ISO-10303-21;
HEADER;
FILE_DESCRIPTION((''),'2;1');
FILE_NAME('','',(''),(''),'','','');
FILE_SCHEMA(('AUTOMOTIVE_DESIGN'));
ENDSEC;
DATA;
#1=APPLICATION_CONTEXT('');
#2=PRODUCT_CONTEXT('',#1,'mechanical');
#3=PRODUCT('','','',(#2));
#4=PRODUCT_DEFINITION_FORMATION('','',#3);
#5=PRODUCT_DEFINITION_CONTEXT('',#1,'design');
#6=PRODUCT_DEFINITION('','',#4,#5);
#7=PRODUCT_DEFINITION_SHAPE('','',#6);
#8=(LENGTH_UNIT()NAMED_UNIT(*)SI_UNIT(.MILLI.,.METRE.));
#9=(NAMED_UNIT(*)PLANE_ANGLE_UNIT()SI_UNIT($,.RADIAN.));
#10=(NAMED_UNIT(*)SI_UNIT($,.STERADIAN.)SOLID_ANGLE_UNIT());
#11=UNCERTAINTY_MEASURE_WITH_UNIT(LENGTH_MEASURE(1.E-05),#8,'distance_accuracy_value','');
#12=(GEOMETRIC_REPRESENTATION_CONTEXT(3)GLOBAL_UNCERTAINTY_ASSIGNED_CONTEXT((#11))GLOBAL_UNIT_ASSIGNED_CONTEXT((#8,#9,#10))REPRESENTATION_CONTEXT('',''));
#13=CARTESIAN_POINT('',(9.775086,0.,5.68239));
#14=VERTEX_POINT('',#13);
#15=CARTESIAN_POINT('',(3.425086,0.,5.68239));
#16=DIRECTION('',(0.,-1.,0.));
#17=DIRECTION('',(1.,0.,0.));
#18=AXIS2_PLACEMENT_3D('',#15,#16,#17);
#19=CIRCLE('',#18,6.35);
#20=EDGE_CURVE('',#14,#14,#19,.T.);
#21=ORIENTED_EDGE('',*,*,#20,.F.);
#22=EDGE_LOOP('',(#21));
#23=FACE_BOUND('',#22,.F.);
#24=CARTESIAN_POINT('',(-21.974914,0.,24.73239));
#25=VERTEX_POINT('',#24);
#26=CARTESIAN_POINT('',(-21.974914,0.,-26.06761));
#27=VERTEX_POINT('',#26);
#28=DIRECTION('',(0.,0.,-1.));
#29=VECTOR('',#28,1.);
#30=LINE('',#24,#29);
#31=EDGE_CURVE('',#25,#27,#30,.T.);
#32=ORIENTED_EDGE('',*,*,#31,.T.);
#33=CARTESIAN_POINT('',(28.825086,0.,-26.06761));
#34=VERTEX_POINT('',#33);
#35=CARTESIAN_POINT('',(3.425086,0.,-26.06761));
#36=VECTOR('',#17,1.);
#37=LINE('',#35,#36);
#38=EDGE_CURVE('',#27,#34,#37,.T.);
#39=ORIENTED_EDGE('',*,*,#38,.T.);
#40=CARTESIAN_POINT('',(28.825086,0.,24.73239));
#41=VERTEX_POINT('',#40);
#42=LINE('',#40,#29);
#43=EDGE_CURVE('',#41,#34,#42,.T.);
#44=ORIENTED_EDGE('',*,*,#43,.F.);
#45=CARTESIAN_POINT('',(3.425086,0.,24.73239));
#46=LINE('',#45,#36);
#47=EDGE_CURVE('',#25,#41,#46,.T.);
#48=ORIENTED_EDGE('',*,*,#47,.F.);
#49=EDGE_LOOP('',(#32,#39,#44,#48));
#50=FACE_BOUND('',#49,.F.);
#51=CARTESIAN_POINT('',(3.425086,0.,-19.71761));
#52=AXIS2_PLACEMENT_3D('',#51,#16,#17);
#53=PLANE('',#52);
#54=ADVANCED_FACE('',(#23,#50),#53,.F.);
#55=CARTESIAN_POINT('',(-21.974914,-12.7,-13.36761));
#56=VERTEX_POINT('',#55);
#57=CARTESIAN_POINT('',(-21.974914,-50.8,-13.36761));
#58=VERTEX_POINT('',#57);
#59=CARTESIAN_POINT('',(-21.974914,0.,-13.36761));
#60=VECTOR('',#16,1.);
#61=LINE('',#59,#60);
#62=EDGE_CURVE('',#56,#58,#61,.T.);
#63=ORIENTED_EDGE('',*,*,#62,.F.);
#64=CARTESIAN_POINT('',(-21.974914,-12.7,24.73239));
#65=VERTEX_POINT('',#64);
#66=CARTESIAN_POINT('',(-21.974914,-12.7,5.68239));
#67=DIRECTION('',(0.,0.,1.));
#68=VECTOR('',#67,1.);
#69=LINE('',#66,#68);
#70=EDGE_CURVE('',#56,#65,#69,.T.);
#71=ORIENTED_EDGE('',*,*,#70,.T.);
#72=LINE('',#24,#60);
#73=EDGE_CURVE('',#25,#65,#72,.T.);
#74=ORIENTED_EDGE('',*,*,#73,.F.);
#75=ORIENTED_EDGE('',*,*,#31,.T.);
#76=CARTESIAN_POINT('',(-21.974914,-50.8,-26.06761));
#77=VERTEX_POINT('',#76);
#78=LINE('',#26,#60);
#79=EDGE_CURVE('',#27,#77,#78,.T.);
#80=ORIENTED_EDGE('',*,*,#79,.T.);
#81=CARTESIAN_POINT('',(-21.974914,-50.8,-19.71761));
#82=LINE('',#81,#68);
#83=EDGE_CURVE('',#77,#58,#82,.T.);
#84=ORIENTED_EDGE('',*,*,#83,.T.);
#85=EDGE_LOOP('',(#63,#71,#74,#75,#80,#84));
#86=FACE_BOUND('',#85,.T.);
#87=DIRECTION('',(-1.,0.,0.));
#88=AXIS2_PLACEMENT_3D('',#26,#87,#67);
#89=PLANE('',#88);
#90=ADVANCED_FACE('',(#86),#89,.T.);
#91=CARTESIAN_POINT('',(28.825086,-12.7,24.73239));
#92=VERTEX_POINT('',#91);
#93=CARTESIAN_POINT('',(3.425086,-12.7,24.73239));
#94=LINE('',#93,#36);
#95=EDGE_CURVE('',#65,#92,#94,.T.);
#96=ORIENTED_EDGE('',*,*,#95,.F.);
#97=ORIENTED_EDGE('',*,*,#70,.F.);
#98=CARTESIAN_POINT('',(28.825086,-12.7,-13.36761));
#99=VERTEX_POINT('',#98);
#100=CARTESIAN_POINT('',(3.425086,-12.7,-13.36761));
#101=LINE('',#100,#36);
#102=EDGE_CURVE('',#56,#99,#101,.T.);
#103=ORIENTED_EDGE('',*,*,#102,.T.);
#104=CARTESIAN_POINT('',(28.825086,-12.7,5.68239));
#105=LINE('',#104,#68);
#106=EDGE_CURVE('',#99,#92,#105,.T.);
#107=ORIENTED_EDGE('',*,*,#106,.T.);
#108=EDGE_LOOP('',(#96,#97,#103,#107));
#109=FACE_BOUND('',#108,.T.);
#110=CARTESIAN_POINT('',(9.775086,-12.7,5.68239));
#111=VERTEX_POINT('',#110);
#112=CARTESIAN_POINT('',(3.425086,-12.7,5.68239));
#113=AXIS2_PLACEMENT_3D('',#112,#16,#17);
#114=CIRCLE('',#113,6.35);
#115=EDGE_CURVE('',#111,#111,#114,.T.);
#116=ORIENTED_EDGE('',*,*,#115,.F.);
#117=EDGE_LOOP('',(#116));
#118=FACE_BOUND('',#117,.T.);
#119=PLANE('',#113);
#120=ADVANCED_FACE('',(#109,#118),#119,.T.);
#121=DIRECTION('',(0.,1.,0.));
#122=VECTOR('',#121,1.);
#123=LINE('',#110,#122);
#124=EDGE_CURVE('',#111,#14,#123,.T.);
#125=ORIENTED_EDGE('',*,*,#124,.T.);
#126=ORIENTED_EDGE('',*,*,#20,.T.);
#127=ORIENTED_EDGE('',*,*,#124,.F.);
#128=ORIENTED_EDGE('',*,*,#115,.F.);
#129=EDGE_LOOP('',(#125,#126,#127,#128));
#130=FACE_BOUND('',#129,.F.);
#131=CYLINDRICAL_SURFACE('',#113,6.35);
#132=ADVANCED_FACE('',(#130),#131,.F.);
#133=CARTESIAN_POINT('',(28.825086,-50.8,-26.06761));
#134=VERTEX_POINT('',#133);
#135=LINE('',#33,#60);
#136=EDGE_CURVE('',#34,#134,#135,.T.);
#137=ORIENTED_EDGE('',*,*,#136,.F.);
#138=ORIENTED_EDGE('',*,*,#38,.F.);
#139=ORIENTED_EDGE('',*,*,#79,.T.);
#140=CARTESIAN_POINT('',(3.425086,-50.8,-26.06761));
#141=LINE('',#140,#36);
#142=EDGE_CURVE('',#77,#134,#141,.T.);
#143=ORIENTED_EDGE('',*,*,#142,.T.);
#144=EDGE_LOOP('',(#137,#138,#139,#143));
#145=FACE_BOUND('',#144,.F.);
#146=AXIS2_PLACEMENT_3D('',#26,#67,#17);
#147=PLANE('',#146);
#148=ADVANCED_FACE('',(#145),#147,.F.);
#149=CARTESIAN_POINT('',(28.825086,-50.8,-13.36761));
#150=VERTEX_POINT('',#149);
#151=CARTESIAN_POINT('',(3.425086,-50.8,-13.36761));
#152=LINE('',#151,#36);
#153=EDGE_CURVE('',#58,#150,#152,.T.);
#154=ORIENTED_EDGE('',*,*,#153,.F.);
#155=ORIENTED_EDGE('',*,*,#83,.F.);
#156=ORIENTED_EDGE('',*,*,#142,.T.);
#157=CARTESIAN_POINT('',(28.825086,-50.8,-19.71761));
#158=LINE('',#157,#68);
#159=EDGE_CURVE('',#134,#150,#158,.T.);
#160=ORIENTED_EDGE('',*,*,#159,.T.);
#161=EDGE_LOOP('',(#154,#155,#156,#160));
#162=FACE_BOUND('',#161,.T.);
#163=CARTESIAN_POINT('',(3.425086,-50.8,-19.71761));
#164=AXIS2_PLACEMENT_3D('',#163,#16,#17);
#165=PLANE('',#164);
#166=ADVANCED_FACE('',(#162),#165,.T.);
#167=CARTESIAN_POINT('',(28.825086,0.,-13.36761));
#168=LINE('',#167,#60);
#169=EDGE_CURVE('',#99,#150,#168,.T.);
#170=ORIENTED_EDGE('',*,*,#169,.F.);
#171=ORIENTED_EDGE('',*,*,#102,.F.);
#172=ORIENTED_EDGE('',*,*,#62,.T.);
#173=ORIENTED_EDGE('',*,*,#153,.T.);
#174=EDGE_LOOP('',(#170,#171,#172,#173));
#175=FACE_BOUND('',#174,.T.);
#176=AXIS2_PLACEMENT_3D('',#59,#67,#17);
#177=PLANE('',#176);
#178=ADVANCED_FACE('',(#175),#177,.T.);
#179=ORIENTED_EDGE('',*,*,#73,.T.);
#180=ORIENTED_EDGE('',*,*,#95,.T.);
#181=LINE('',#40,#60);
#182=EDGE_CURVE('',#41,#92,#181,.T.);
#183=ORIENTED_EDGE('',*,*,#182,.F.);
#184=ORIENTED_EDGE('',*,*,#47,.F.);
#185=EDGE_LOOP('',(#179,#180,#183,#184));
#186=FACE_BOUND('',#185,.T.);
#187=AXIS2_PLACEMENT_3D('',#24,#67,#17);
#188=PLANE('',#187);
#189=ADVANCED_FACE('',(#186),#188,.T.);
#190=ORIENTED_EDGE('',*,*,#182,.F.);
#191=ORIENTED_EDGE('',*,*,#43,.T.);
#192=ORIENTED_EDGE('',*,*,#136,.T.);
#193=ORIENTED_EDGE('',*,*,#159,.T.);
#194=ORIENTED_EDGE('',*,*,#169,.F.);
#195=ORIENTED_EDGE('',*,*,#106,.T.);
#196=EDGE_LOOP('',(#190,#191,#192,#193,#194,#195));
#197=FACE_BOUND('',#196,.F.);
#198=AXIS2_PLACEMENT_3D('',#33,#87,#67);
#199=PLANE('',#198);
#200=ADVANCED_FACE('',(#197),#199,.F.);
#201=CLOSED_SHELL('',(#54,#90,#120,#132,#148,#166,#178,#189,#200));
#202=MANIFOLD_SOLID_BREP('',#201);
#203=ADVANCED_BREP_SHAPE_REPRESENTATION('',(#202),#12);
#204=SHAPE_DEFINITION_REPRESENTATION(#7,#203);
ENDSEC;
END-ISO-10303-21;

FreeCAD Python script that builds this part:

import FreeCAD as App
import Part
import Sketcher
Q = App.Units.Quantity


def add_polygon(sketch, points):
    """Adds a closed chain of lines whose ends are joined by coincident constraints."""
    first, n = sketch.GeometryCount, len(points)
    for a, b in zip(points, points[1:] + points[:1]):
        sketch.addGeometry(Part.LineSegment(App.Vector(*a, 0), App.Vector(*b, 0)), False)
    for i in range(n):
        sketch.addConstraint(Sketcher.Constraint("Coincident", first + i, 2, first + (i + 1) % n, 1))

doc = App.newDocument("Part")
params = doc.addObject("Spreadsheet::Sheet", "Params")
for row, (alias, value) in enumerate([
    ("sketch1_width", "2 in"),
    ("sketch1_height", "1.5 in"),
    ("pad1_length", "0.5 in"),
    ("sketch2_width", "2 in"),
    ("sketch2_height", "0.5 in"),
    ("pad2_length", "2 in"),
    ("sketch3_diameter", "0.5 in"),
], start=1):
    params.set(f"A{row}", alias)
    params.set(f"B{row}", "=" + value)
    params.setAlias(f"B{row}", alias)

body = doc.addObject("PartDesign::Body", "Body")

# Sketch on XZ plane
sketch1 = body.newObject("Sketcher::SketchObject", "Sketch")
sketch1.AttachmentSupport = (doc.getObject("XZ_Plane"), [""])
sketch1.MapMode = "FlatFace"
add_polygon(sketch1, [(-22, 25), (-22, -13), (29, -13), (29, 25)])  # lines 0-3
sketch1.addConstraint([
    Sketcher.Constraint("Vertical", 0),
    Sketcher.Constraint("Horizontal", 1),
    Sketcher.Constraint("Vertical", 2),
    Sketcher.Constraint("Horizontal", 3),
    Sketcher.Constraint("DistanceX", 1, 1, 1, 2, Q("2 in")),
    Sketcher.Constraint("DistanceY", 0, 2, 0, 1, Q("1.5 in")),
    Sketcher.Constraint("DistanceY", 0, 2, -1, 1, Q("13.36761 mm")),
    Sketcher.Constraint("DistanceX", 0, 2, -1, 1, Q("21.974914 mm")),
])
sketch1.setExpression("Constraints[8]", "Params.sketch1_width")
sketch1.setExpression("Constraints[9]", "Params.sketch1_height")
pad1 = body.newObject("PartDesign::Pad", "Pad")
pad1.Profile = sketch1
pad1.setExpression("Length", "Params.pad1_length")

# Sketch on XZ plane
sketch2 = body.newObject("Sketcher::SketchObject", "Sketch001")
sketch2.AttachmentSupport = (doc.getObject("XZ_Plane"), [""])
sketch2.MapMode = "FlatFace"
add_polygon(sketch2, [(-22, -13), (-22, -26), (29, -26), (29, -13)])  # lines 0-3
sketch2.addConstraint([
    Sketcher.Constraint("Vertical", 0),
    Sketcher.Constraint("Horizontal", 1),
    Sketcher.Constraint("Vertical", 2),
    Sketcher.Constraint("Horizontal", 3),
    Sketcher.Constraint("DistanceX", 1, 1, 1, 2, Q("2 in")),
    Sketcher.Constraint("DistanceY", 0, 2, 0, 1, Q("0.5 in")),
    Sketcher.Constraint("DistanceY", 0, 2, -1, 1, Q("26.06761 mm")),
    Sketcher.Constraint("DistanceX", 0, 2, -1, 1, Q("21.974914 mm")),
])
sketch2.setExpression("Constraints[8]", "Params.sketch2_width")
sketch2.setExpression("Constraints[9]", "Params.sketch2_height")
pad2 = body.newObject("PartDesign::Pad", "Pad001")
pad2.Profile = sketch2
pad2.setExpression("Length", "Params.pad2_length")

# Sketch on XZ plane
sketch3 = body.newObject("Sketcher::SketchObject", "Sketch002")
sketch3.AttachmentSupport = (doc.getObject("XZ_Plane"), [""])
sketch3.MapMode = "FlatFace"
sketch3.AttachmentOffset = App.Placement(App.Vector(0, 0, 0.5 * 25.4), App.Rotation())
sketch3.addGeometry(Part.Circle(App.Vector(3, 6, 0), App.Vector(0, 0, 1), 6), False)
sketch3.addConstraint([
    Sketcher.Constraint("Diameter", 0, Q("0.5 in")),
    Sketcher.Constraint("DistanceY", -1, 1, 0, 3, Q("5.68239 mm")),
    Sketcher.Constraint("DistanceX", -1, 1, 0, 3, Q("3.425086 mm")),
])
sketch3.setExpression("Constraints[0]", "Params.sketch3_diameter")
pocket1 = body.newObject("PartDesign::Pocket", "Pocket")
pocket1.Profile = sketch3
pocket1.Type = "ThroughAll"

doc.recompute()
